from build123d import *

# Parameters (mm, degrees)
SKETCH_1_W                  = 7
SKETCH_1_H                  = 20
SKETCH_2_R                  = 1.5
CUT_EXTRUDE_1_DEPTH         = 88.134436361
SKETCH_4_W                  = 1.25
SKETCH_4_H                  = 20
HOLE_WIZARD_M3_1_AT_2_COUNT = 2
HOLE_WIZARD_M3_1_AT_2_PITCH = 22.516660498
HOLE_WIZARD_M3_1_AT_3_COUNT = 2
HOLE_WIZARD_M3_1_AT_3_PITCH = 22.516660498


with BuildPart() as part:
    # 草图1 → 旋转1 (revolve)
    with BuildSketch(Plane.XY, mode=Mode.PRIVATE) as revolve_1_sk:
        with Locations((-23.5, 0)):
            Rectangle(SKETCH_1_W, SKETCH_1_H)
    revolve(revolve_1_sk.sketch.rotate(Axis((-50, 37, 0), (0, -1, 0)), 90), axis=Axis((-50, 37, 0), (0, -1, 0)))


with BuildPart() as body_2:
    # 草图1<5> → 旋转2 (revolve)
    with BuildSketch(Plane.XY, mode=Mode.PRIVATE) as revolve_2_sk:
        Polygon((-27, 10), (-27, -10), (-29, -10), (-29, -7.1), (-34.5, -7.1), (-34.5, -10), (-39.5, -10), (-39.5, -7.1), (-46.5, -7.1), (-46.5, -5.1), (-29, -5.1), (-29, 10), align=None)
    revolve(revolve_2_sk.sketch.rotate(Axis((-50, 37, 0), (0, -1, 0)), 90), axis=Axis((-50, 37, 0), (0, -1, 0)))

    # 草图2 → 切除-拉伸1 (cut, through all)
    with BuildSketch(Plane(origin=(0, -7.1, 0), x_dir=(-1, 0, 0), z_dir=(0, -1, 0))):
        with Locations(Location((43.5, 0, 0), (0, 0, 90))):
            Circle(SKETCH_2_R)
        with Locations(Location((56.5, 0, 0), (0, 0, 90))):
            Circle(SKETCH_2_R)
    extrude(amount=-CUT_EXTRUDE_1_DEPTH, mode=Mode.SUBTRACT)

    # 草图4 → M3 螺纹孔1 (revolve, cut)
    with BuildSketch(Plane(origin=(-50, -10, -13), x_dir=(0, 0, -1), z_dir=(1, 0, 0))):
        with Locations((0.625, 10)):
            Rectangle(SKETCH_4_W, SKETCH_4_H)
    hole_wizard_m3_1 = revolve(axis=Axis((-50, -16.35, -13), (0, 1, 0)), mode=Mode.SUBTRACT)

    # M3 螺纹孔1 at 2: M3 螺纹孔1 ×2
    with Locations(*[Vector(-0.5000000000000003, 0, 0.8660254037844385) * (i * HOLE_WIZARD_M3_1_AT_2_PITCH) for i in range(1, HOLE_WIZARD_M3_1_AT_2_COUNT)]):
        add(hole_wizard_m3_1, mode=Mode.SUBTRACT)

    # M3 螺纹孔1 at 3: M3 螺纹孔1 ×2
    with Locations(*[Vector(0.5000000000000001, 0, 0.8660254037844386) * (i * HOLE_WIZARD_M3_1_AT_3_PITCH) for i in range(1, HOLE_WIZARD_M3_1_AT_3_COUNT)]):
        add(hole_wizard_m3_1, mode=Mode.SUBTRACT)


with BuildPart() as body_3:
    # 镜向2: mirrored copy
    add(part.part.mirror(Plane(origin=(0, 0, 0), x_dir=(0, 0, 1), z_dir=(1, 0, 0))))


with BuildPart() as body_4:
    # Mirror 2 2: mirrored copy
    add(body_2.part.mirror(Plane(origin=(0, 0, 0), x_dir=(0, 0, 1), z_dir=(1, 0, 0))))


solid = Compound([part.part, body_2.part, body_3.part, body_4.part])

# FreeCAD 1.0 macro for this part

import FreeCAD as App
import Part
import Sketcher

V = App.Vector
Q = App.Units.Quantity


def add_polygon(sketch, points):
    """Adds a closed chain of lines whose ends are joined by coincident constraints."""
    first, n = sketch.GeometryCount, len(points)
    for a, b in zip(points, points[1:] + points[:1]):
        sketch.addGeometry(Part.LineSegment(App.Vector(*a, 0), App.Vector(*b, 0)), False)
    for i in range(n):
        sketch.addConstraint(Sketcher.Constraint("Coincident", first + i, 2, first + (i + 1) % n, 1))

doc = App.newDocument("Part")
body = doc.addObject("PartDesign::Body", "Body")

sketch1 = doc.addObject("Sketcher::SketchObject", "Sketch")
body.addObject(sketch1)
sketch1.AttachmentSupport = (doc.XY_Plane, [""])
sketch1.MapMode = "FlatFace"
add_polygon(sketch1, [(-27, 10), (-27, -10), (-20, -10), (-20, 10)])
sketch1.addGeometry(Part.LineSegment(V(-50, 10, 0), V(-50, -10, 0)), True)
sketch1.addConstraint([
    Sketcher.Constraint("Vertical", 0),
    Sketcher.Constraint("Horizontal", 1),
    Sketcher.Constraint("Vertical", 2),
    Sketcher.Constraint("Horizontal", 3),
    Sketcher.Constraint("Vertical", 4),
    Sketcher.Constraint("Horizontal", 3, 2, 4, 1),
    Sketcher.Constraint("Horizontal", 1, 2, 4, 2),
    Sketcher.Constraint("DistanceX", 1, 1, 1, 2, Q("7 mm")),
    Sketcher.Constraint("DistanceY", 0, 2, 0, 1, Q("20 mm")),
    Sketcher.Constraint("DistanceX", 0, 2, -1, 1, Q("27 mm")),
    Sketcher.Constraint("DistanceY", 0, 2, -1, 1, Q("10 mm")),
    Sketcher.Constraint("DistanceX", 4, 1, -1, 1, Q("50 mm")),
])
revolution = doc.addObject("PartDesign::Revolution", "Revolution")
body.addObject(revolution)
revolution.Profile = sketch1
revolution.ReferenceAxis = (sketch1, ["Axis0"])
revolution.Angle = 360
body2 = doc.addObject("PartDesign::Body", "Body001")

sketch2 = doc.addObject("Sketcher::SketchObject", "Sketch001")
body2.addObject(sketch2)
sketch2.AttachmentSupport = (doc.getObject("XY_Plane001"), [""])
sketch2.MapMode = "FlatFace"
add_polygon(sketch2, [(-27, -10), (-27, 10), (-29, 10), (-29, -5.1), (-46.5, -5.1), (-46.5, -7.1), (-39.5, -7.1), (-39.5, -10), (-34.5, -10), (-34.5, -7.1), (-29, -7.1), (-29, -10)])
sketch2.addGeometry(Part.LineSegment(V(-50, 10, 0), V(-50, -10, 0)), True)
sketch2.addConstraint([
    Sketcher.Constraint("Vertical", 0),
    Sketcher.Constraint("Horizontal", 1),
    Sketcher.Constraint("Vertical", 2),
    Sketcher.Constraint("Horizontal", 3),
    Sketcher.Constraint("Vertical", 4),
    Sketcher.Constraint("Horizontal", 5),
    Sketcher.Constraint("Vertical", 6),
    Sketcher.Constraint("Horizontal", 7),
    Sketcher.Constraint("Vertical", 8),
    Sketcher.Constraint("Horizontal", 9),
    Sketcher.Constraint("Vertical", 10),
    Sketcher.Constraint("Horizontal", 11),
    Sketcher.Constraint("Vertical", 12),
    Sketcher.Constraint("Symmetric", 1, 2, 10, 2, -1),
    Sketcher.Constraint("Horizontal", 5, 2, 8, 2),
    Sketcher.Constraint("Horizontal", 7, 2, 10, 2),
    Sketcher.Constraint("Horizontal", 1, 2, 12, 1),
    Sketcher.Constraint("Horizontal", 11, 2, 12, 2),
    Sketcher.Constraint("Equal", 11, 4),
    Sketcher.Constraint("DistanceX", 1, 2, 1, 1, Q("2 mm")),
    Sketcher.Constraint("DistanceX", 5, 1, 5, 2, Q("7 mm")),
    Sketcher.Constraint("DistanceX", 7, 1, 7, 2, Q("5 mm")),
    Sketcher.Constraint("DistanceY", 0, 1, 0, 2, Q("20 mm")),
    Sketcher.Constraint("DistanceX", 3, 2, 3, 1, Q("17.5 mm")),
    Sketcher.Constraint("DistanceY", 2, 2, 2, 1, Q("15.1 mm")),
    Sketcher.Constraint("DistanceX", 0, 2, -1, 1, Q("27 mm")),
    Sketcher.Constraint("DistanceX", 12, 1, -1, 1, Q("50 mm")),
])
revolution2 = doc.addObject("PartDesign::Revolution", "Revolution001")
body2.addObject(revolution2)
revolution2.Profile = sketch2
revolution2.ReferenceAxis = (sketch2, ["Axis0"])
revolution2.Angle = 360

sketch3 = doc.addObject("Sketcher::SketchObject", "Sketch002")
body2.addObject(sketch3)
sketch3.AttachmentSupport = (doc.getObject("XZ_Plane001"), [""])
sketch3.MapMode = "FlatFace"
sketch3.AttachmentOffset = App.Placement(V(0, 0, 7.1), App.Rotation())
sketch3.addGeometry([
    Part.Circle(V(-43.5, 0, 0), V(0, 0, 1), 1.5),
    Part.Circle(V(-56.5, 0, 0), V(0, 0, 1), 1.5),
], False)
sketch3.addConstraint([
    Sketcher.Constraint("Equal", 0, 1),
    Sketcher.Constraint("PointOnObject", 0, 3, -1),
    Sketcher.Constraint("PointOnObject", 1, 3, -1),
    Sketcher.Constraint("Diameter", 0, Q("3 mm")),
    Sketcher.Constraint("DistanceX", 1, 3, 0, 3, Q("13 mm")),
    Sketcher.Constraint("DistanceX", 0, 3, -1, 1, Q("43.5 mm")),
])
pocket1 = doc.addObject("PartDesign::Pocket", "Pocket")
body2.addObject(pocket1)
pocket1.Profile = sketch3
pocket1.Type = "ThroughAll"

sketch4 = doc.addObject("Sketcher::SketchObject", "Sketch003")
body2.addObject(sketch4)
sketch4.AttachmentSupport = (doc.getObject("YZ_Plane001"), [""])
sketch4.MapMode = "FlatFace"
sketch4.AttachmentOffset = App.Placement(V(0, 0, -50), App.Rotation())
add_polygon(sketch4, [(10, -13), (-10, -13), (-10, -14.2), (10, -14.2)])
sketch4.addGeometry(Part.LineSegment(V(-10, -13, 0), V(10, -13, 0)), True)
sketch4.addConstraint([
    Sketcher.Constraint("Horizontal", 0),
    Sketcher.Constraint("Vertical", 1),
    Sketcher.Constraint("Horizontal", 2),
    Sketcher.Constraint("Vertical", 3),
    Sketcher.Constraint("Horizontal", 4),
    Sketcher.Constraint("Coincident", 4, 1, 0, 2),
    Sketcher.Constraint("Vertical", 2, 2, 4, 2),
    Sketcher.Constraint("DistanceX", 0, 2, 0, 1, Q("20 mm")),
    Sketcher.Constraint("DistanceX", 0, 2, -1, 1, Q("10 mm")),
    Sketcher.Constraint("DistanceY", 0, 2, -1, 1, Q("13 mm")),
    Sketcher.Constraint("DistanceY", 1, 2, 1, 1, Q("1.25 mm")),
])
groove = doc.addObject("PartDesign::Groove", "Groove")
body2.addObject(groove)
groove.Profile = sketch4
groove.ReferenceAxis = (sketch4, ["Axis0"])
groove.Angle = 360
doc.recompute()

datumline = doc.addObject("PartDesign::Line", "DatumLine")
body2.addObject(datumline)
datumline.Placement = App.Placement(V(0, 0, 0), App.Rotation(V(0, 0, 1), V(-0.5, 0, 0.866025404)))
linearpattern = doc.addObject("PartDesign::LinearPattern", "LinearPattern")
body2.addObject(linearpattern)
linearpattern.Originals = [groove]
linearpattern.Direction = (datumline, [""])
linearpattern.Mode = "offset"
linearpattern.Offset = 22.51666
linearpattern.Occurrences = 2
body2.Tip = linearpattern
doc.recompute()

datumline2 = doc.addObject("PartDesign::Line", "DatumLine001")
body2.addObject(datumline2)
datumline2.Placement = App.Placement(V(0, 0, 0), App.Rotation(V(0, 0, 1), V(0.5, 0, 0.866025404)))
linearpattern2 = doc.addObject("PartDesign::LinearPattern", "LinearPattern001")
body2.addObject(linearpattern2)
linearpattern2.Originals = [groove]
linearpattern2.Direction = (datumline2, [""])
linearpattern2.Mode = "offset"
linearpattern2.Offset = 22.51666
linearpattern2.Occurrences = 2
body2.Tip = linearpattern2
body3 = doc.addObject("PartDesign::Body", "Body002")
doc.recompute()

mirroring = doc.addObject("Part::Mirroring", "Mirroring")
mirroring.Source = body
mirroring.Base = V(0, 0, 0)
mirroring.Normal = V(1, 0, 0)
body3.BaseFeature = mirroring
doc.recompute()
body4 = doc.addObject("PartDesign::Body", "Body003")
doc.recompute()

mirroring2 = doc.addObject("Part::Mirroring", "Mirroring001")
mirroring2.Source = body2
mirroring2.Base = V(0, 0, 0)
mirroring2.Normal = V(1, 0, 0)
body4.BaseFeature = mirroring2
doc.recompute()
mirroring.Visibility = False
mirroring2.Visibility = False

doc.recompute()
